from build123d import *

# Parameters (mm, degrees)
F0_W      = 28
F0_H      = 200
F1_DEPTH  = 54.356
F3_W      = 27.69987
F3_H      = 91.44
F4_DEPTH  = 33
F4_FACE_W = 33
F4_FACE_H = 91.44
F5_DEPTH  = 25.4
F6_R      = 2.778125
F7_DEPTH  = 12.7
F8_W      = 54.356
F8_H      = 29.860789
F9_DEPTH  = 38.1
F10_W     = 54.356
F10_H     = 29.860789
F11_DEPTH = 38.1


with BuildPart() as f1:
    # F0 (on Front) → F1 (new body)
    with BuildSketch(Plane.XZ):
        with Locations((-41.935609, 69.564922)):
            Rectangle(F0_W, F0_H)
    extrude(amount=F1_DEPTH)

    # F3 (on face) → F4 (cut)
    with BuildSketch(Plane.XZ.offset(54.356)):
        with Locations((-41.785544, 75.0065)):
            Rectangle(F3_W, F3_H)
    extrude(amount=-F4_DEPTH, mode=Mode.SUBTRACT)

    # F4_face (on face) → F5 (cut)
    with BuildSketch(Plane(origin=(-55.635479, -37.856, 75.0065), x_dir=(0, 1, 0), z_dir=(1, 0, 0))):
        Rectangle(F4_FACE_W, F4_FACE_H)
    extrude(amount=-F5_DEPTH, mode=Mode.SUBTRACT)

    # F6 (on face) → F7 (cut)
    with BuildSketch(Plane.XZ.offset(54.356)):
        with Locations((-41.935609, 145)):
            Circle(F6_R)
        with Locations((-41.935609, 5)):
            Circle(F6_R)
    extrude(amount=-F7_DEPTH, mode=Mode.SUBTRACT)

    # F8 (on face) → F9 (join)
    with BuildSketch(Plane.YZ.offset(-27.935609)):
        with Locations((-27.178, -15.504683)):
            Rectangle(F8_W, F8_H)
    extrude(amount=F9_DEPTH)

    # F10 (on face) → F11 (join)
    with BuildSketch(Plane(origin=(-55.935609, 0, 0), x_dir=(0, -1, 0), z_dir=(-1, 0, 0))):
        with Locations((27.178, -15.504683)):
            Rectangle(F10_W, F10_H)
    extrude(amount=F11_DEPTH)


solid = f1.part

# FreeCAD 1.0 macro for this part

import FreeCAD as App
import Part
import Sketcher
from FreeCAD import Vector
Q = App.Units.Quantity


def add_polygon(sketch, points):
    """Adds a closed chain of lines whose ends are joined by coincident constraints."""
    first, n = sketch.GeometryCount, len(points)
    for a, b in zip(points, points[1:] + points[:1]):
        sketch.addGeometry(Part.LineSegment(App.Vector(*a, 0), App.Vector(*b, 0)), False)
    for i in range(n):
        sketch.addConstraint(Sketcher.Constraint("Coincident", first + i, 2, first + (i + 1) % n, 1))

doc = App.newDocument("Part")
body = doc.addObject("PartDesign::Body", "Body")

sketch1 = doc.addObject("Sketcher::SketchObject", "Sketch")
body.addObject(sketch1)
sketch1.AttachmentSupport = (doc.XZ_Plane, [""])
sketch1.MapMode = "FlatFace"
add_polygon(sketch1, [(-56, 170), (-56, -30), (-28, -30), (-28, 170)])
sketch1.addConstraint([
    Sketcher.Constraint("Vertical", 0),
    Sketcher.Constraint("Horizontal", 1),
    Sketcher.Constraint("Vertical", 2),
    Sketcher.Constraint("Horizontal", 3),
    Sketcher.Constraint("DistanceX", 1, 1, 1, 2, Q("28 mm")),
    Sketcher.Constraint("DistanceY", 0, 2, 0, 1, Q("200 mm")),
    Sketcher.Constraint("DistanceX", 0, 2, -1, 1, Q("55.935609 mm")),
    Sketcher.Constraint("DistanceY", 0, 2, -1, 1, Q("30.435078 mm")),
])
pad1 = doc.addObject("PartDesign::Pad", "Pad")
body.addObject(pad1)
pad1.Profile = sketch1
pad1.Length = Q("2.14 in")

sketch2 = doc.addObject("Sketcher::SketchObject", "Sketch001")
body.addObject(sketch2)
sketch2.AttachmentSupport = (doc.XZ_Plane, [""])
sketch2.MapMode = "FlatFace"
sketch2.AttachmentOffset = App.Placement(Vector(0, 0, 2.14 * 25.4), App.Rotation())
add_polygon(sketch2, [(-56, 121), (-56, 29), (-28, 29), (-28, 121)])
sketch2.addConstraint([
    Sketcher.Constraint("Vertical", 0),
    Sketcher.Constraint("Horizontal", 1),
    Sketcher.Constraint("Vertical", 2),
    Sketcher.Constraint("Horizontal", 3),
    Sketcher.Constraint("DistanceY", 0, 2, 0, 1, Q("3.6 in")),
    Sketcher.Constraint("DistanceX", 1, 1, 1, 2, Q("27.69987 mm")),
    Sketcher.Constraint("DistanceY", -1, 1, 0, 2, Q("29.2865 mm")),
    Sketcher.Constraint("DistanceX", 0, 2, -1, 1, Q("55.635479 mm")),
])
pocket1 = doc.addObject("PartDesign::Pocket", "Pocket")
body.addObject(pocket1)
pocket1.Profile = sketch2
pocket1.Length = 33

sketch3 = doc.addObject("Sketcher::SketchObject", "Sketch002")
body.addObject(sketch3)
sketch3.AttachmentSupport = (doc.YZ_Plane, [""])
sketch3.MapMode = "FlatFace"
sketch3.AttachmentOffset = App.Placement(Vector(0, 0, -55.635479), App.Rotation())
add_polygon(sketch3, [(-54, 121), (-54, 29), (-21, 29), (-21, 121)])
sketch3.addConstraint([
    Sketcher.Constraint("Vertical", 0),
    Sketcher.Constraint("Horizontal", 1),
    Sketcher.Constraint("Vertical", 2),
    Sketcher.Constraint("Horizontal", 3),
    Sketcher.Constraint("DistanceY", 0, 2, 0, 1, Q("3.6 in")),
    Sketcher.Constraint("DistanceX", 0, 2, -1, 1, Q("2.14 in")),
    Sketcher.Constraint("DistanceX", 1, 1, 1, 2, Q("33 mm")),
    Sketcher.Constraint("DistanceY", -1, 1, 0, 2, Q("29.2865 mm")),
])
pocket2 = doc.addObject("PartDesign::Pocket", "Pocket001")
body.addObject(pocket2)
pocket2.Profile = sketch3
pocket2.Length = Q("1 in")

sketch4 = doc.addObject("Sketcher::SketchObject", "Sketch003")
body.addObject(sketch4)
sketch4.AttachmentSupport = (doc.XZ_Plane, [""])
sketch4.MapMode = "FlatFace"
sketch4.AttachmentOffset = App.Placement(Vector(0, 0, 2.14 * 25.4), App.Rotation())
sketch4.addGeometry([
    Part.Circle(Vector(-41.9, 145, 0), Vector(0, 0, 1), 2.8),
    Part.Circle(Vector(-41.9, 5, 0), Vector(0, 0, 1), 2.8),
], False)
sketch4.addConstraint([
    Sketcher.Constraint("Equal", 0, 1),
    Sketcher.Constraint("Vertical", 0, 3, 1, 3),
    Sketcher.Constraint("Diameter", 0, Q("0.21875 in")),
    Sketcher.Constraint("DistanceY", -1, 1, 0, 3, Q("145 mm")),
    Sketcher.Constraint("DistanceY", -1, 1, 1, 3, Q("5 mm")),
    Sketcher.Constraint("DistanceX", 0, 3, -1, 1, Q("41.935609 mm")),
])
pocket3 = doc.addObject("PartDesign::Pocket", "Pocket002")
body.addObject(pocket3)
pocket3.Profile = sketch4
pocket3.Length = Q("0.5 in")

sketch5 = doc.addObject("Sketcher::SketchObject", "Sketch004")
body.addObject(sketch5)
sketch5.AttachmentSupport = (doc.YZ_Plane, [""])
sketch5.MapMode = "FlatFace"
sketch5.AttachmentOffset = App.Placement(Vector(0, 0, -27.935609), App.Rotation())
add_polygon(sketch5, [(-54, -1), (-54, -30), (0, -30), (0, -1)])
sketch5.addConstraint([
    Sketcher.Constraint("Vertical", 0),
    Sketcher.Constraint("Horizontal", 1),
    Sketcher.Constraint("Vertical", 2),
    Sketcher.Constraint("Horizontal", 3),
    Sketcher.Constraint("PointOnObject", 1, 2, -2),
    Sketcher.Constraint("DistanceX", 1, 1, 1, 2, Q("2.14 in")),
    Sketcher.Constraint("DistanceY", 0, 2, 0, 1, Q("29.860789 mm")),
    Sketcher.Constraint("DistanceY", 2, 2, -1, 1, Q("0.574288 mm")),
])
pad2 = doc.addObject("PartDesign::Pad", "Pad001")
body.addObject(pad2)
pad2.Profile = sketch5
pad2.Length = Q("1.5 in")

sketch6 = doc.addObject("Sketcher::SketchObject", "Sketch005")
body.addObject(sketch6)
sketch6.AttachmentSupport = (doc.YZ_Plane, [""])
sketch6.MapMode = "FlatFace"
sketch6.AttachmentOffset = App.Placement(Vector(0, 0, -55.935609), App.Rotation())
add_polygon(sketch6, [(0, -1), (0, -30), (-54, -30), (-54, -1)])
sketch6.addConstraint([
    Sketcher.Constraint("Vertical", 0),
    Sketcher.Constraint("Horizontal", 1),
    Sketcher.Constraint("Vertical", 2),
    Sketcher.Constraint("Horizontal", 3),
    Sketcher.Constraint("PointOnObject", 0, 2, -2),
    Sketcher.Constraint("DistanceX", 1, 2, 1, 1, Q("2.14 in")),
    Sketcher.Constraint("DistanceY", 0, 2, 0, 1, Q("29.860789 mm")),
    Sketcher.Constraint("DistanceY", 2, 2, -1, 1, Q("0.574288 mm")),
])
pad3 = doc.addObject("PartDesign::Pad", "Pad002")
body.addObject(pad3)
pad3.Profile = sketch6
pad3.Length = Q("1.5 in")
pad3.Reversed = True

doc.recompute()
